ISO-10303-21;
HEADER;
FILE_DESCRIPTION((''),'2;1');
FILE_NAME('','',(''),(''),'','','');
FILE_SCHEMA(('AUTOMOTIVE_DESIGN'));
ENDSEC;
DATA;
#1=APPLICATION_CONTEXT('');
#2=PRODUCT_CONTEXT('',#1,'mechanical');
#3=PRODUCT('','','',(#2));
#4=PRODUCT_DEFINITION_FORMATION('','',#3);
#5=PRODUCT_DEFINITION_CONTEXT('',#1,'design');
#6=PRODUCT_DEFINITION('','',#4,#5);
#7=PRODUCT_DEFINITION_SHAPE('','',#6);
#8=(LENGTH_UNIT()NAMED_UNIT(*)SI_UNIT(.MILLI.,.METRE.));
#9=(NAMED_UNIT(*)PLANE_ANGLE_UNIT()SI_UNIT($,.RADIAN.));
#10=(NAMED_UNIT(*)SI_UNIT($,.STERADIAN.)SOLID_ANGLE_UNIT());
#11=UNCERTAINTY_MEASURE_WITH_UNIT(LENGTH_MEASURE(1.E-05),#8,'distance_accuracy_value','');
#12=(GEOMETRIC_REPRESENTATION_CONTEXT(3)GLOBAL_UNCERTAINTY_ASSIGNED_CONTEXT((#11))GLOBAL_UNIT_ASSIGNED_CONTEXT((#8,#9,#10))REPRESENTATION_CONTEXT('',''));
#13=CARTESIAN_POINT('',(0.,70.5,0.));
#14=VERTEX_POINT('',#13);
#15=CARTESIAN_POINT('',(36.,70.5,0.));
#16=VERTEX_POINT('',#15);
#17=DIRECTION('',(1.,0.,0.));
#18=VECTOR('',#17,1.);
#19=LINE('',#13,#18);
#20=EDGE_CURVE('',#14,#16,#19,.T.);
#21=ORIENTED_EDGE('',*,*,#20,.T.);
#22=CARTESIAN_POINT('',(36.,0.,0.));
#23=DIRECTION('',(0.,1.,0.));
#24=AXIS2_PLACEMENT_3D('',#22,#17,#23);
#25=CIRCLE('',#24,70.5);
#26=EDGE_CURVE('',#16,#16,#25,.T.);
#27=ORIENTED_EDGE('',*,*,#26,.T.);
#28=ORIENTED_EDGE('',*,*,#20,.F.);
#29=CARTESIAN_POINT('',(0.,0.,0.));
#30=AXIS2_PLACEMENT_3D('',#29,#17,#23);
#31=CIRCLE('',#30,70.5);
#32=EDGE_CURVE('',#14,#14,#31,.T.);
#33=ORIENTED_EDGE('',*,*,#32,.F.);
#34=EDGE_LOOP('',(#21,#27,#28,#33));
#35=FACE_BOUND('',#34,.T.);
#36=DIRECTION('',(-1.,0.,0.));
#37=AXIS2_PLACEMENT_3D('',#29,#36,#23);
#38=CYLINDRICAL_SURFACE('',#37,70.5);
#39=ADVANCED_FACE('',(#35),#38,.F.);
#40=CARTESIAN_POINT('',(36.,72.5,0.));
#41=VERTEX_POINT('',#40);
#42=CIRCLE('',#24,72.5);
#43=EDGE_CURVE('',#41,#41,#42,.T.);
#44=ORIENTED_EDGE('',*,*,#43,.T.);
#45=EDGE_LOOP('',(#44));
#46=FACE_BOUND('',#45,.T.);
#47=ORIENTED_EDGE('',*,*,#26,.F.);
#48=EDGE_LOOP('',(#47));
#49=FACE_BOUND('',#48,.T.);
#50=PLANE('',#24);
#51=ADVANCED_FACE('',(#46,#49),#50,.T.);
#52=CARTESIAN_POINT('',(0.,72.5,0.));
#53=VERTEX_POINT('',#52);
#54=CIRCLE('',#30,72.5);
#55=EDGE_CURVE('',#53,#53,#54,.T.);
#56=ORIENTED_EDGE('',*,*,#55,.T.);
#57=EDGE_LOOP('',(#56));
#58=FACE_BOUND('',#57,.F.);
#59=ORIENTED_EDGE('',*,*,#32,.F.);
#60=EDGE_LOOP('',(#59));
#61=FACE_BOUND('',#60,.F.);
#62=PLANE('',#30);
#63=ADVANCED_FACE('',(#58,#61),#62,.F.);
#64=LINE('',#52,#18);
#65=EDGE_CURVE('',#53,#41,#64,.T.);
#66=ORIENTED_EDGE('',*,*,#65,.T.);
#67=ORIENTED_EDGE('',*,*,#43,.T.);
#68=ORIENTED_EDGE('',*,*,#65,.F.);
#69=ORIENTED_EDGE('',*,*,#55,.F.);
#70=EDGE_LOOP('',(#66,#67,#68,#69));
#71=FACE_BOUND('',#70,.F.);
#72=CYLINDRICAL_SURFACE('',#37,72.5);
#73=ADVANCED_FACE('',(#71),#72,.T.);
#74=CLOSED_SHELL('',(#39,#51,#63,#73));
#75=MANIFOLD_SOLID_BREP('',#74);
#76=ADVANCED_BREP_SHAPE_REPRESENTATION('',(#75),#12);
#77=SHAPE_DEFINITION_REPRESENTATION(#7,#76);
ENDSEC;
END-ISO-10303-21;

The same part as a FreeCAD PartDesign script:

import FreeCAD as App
import Part
import Sketcher

doc = App.newDocument("Part")
params = doc.addObject("Spreadsheet::Sheet", "Params")
for row, (alias, value) in enumerate([
    ("sketch1_diameter", "145 mm"),
    ("sketch1_diameter2", "141 mm"),
    ("pad1_length", "36 mm"),
], start=1):
    params.set(f"A{row}", alias)
    params.set(f"B{row}", "=" + value)
    params.setAlias(f"B{row}", alias)

body = doc.addObject("PartDesign::Body", "Body")

# Sketch on YZ plane
sketch1 = body.newObject("Sketcher::SketchObject", "Sketch")
sketch1.AttachmentSupport = (doc.getObject("YZ_Plane"), [""])
sketch1.MapMode = "FlatFace"
sketch1.addGeometry(Part.Circle(App.Vector(0, 0, 0), App.Vector(0, 0, 1), 72), False)
sketch1.addGeometry(Part.Circle(App.Vector(0, 0, 0), App.Vector(0, 0, 1), 70), False)
sketch1.addConstraint(Sketcher.Constraint("Coincident", 0, 3, -1, 1))
sketch1.addConstraint(Sketcher.Constraint("Coincident", 1, 3, -1, 1))
sketch1.addConstraint(Sketcher.Constraint("Diameter", 0, 145.0))
sketch1.addConstraint(Sketcher.Constraint("Diameter", 1, 141.0))
sketch1.setExpression("Constraints[2]", "Params.sketch1_diameter")
sketch1.setExpression("Constraints[3]", "Params.sketch1_diameter2")
pad1 = body.newObject("PartDesign::Pad", "Pad")
pad1.Profile = sketch1
pad1.setExpression("Length", "Params.pad1_length")

doc.recompute()
